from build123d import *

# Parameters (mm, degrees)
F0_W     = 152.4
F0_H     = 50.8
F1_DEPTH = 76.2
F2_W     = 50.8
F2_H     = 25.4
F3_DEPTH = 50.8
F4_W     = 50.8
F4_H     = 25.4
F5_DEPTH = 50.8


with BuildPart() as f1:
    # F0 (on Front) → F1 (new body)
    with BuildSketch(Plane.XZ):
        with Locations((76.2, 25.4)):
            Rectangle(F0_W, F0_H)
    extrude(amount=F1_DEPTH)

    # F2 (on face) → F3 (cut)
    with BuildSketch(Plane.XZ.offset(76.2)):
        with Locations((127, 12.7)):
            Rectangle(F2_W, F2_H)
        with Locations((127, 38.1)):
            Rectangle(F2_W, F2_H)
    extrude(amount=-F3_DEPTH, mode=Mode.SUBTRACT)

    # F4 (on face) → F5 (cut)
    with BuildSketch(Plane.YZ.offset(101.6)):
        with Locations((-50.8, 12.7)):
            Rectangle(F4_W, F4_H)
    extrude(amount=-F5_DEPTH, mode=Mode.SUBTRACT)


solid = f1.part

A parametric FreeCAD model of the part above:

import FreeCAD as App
import Part
import Sketcher
Q = App.Units.Quantity


def add_polygon(sketch, points):
    """Adds a closed chain of lines whose ends are joined by coincident constraints."""
    first, n = sketch.GeometryCount, len(points)
    for a, b in zip(points, points[1:] + points[:1]):
        sketch.addGeometry(Part.LineSegment(App.Vector(*a, 0), App.Vector(*b, 0)), False)
    for i in range(n):
        sketch.addConstraint(Sketcher.Constraint("Coincident", first + i, 2, first + (i + 1) % n, 1))

doc = App.newDocument("Part")
body = doc.addObject("PartDesign::Body", "Body")

# Sketch on XZ plane
sketch1 = body.newObject("Sketcher::SketchObject", "Sketch")
sketch1.AttachmentSupport = (doc.getObject("XZ_Plane"), [""])
sketch1.MapMode = "FlatFace"
add_polygon(sketch1, [(0, 50.8), (0, 0), (152.4, 0), (152.4, 50.8)])  # lines 0-3
sketch1.addConstraint(Sketcher.Constraint("Vertical", 0))
sketch1.addConstraint(Sketcher.Constraint("Horizontal", 1))
sketch1.addConstraint(Sketcher.Constraint("Vertical", 2))
sketch1.addConstraint(Sketcher.Constraint("Horizontal", 3))
sketch1.addConstraint(Sketcher.Constraint("Coincident", 0, 2, -1, 1))
sketch1.addConstraint(Sketcher.Constraint("DistanceX", 1, 1, 1, 2, Q("6 in")))
sketch1.addConstraint(Sketcher.Constraint("DistanceY", 0, 2, 0, 1, Q("2 in")))
pad1 = body.newObject("PartDesign::Pad", "Pad")
pad1.Profile = sketch1
pad1.Length = Q("3 in")

# Sketch on XZ plane
sketch2 = body.newObject("Sketcher::SketchObject", "Sketch001")
sketch2.AttachmentSupport = (doc.getObject("XZ_Plane"), [""])
sketch2.MapMode = "FlatFace"
sketch2.AttachmentOffset = App.Placement(App.Vector(0, 0, 3 * 25.4), App.Rotation())
add_polygon(sketch2, [(101.6, 0), (152.4, 0), (152.4, 50.8), (101.6, 50.8)])  # lines 0-3
sketch2.addConstraint(Sketcher.Constraint("Horizontal", 0))
sketch2.addConstraint(Sketcher.Constraint("Vertical", 1))
sketch2.addConstraint(Sketcher.Constraint("Horizontal", 2))
sketch2.addConstraint(Sketcher.Constraint("Vertical", 3))
sketch2.addConstraint(Sketcher.Constraint("PointOnObject", 0, 2, -1))
sketch2.addConstraint(Sketcher.Constraint("Equal", 2, 1))
sketch2.addConstraint(Sketcher.Constraint("DistanceX", 0, 1, 0, 2, Q("2 in")))
sketch2.addConstraint(Sketcher.Constraint("DistanceX", -1, 1, 0, 2, Q("6 in")))
pocket1 = body.newObject("PartDesign::Pocket", "Pocket")
pocket1.Profile = sketch2
pocket1.Length = Q("2 in")

# Sketch on YZ plane
sketch3 = body.newObject("Sketcher::SketchObject", "Sketch002")
sketch3.AttachmentSupport = (doc.getObject("YZ_Plane"), [""])
sketch3.MapMode = "FlatFace"
sketch3.AttachmentOffset = App.Placement(App.Vector(0, 0, 4 * 25.4), App.Rotation())
add_polygon(sketch3, [(-76.2, 25.4), (-76.2, 0), (-25.4, 0), (-25.4, 25.4)])  # lines 0-3
sketch3.addConstraint(Sketcher.Constraint("Vertical", 0))
sketch3.addConstraint(Sketcher.Constraint("Horizontal", 1))
sketch3.addConstraint(Sketcher.Constraint("Vertical", 2))
sketch3.addConstraint(Sketcher.Constraint("Horizontal", 3))
sketch3.addConstraint(Sketcher.Constraint("PointOnObject", 0, 2, -1))
sketch3.addConstraint(Sketcher.Constraint("DistanceX", 1, 1, 1, 2, Q("2 in")))
sketch3.addConstraint(Sketcher.Constraint("DistanceY", 0, 2, 0, 1, Q("1 in")))
sketch3.addConstraint(Sketcher.Constraint("DistanceX", 0, 2, -1, 1, Q("3 in")))
pocket2 = body.newObject("PartDesign::Pocket", "Pocket001")
pocket2.Profile = sketch3
pocket2.Length = Q("2 in")

doc.recompute()
